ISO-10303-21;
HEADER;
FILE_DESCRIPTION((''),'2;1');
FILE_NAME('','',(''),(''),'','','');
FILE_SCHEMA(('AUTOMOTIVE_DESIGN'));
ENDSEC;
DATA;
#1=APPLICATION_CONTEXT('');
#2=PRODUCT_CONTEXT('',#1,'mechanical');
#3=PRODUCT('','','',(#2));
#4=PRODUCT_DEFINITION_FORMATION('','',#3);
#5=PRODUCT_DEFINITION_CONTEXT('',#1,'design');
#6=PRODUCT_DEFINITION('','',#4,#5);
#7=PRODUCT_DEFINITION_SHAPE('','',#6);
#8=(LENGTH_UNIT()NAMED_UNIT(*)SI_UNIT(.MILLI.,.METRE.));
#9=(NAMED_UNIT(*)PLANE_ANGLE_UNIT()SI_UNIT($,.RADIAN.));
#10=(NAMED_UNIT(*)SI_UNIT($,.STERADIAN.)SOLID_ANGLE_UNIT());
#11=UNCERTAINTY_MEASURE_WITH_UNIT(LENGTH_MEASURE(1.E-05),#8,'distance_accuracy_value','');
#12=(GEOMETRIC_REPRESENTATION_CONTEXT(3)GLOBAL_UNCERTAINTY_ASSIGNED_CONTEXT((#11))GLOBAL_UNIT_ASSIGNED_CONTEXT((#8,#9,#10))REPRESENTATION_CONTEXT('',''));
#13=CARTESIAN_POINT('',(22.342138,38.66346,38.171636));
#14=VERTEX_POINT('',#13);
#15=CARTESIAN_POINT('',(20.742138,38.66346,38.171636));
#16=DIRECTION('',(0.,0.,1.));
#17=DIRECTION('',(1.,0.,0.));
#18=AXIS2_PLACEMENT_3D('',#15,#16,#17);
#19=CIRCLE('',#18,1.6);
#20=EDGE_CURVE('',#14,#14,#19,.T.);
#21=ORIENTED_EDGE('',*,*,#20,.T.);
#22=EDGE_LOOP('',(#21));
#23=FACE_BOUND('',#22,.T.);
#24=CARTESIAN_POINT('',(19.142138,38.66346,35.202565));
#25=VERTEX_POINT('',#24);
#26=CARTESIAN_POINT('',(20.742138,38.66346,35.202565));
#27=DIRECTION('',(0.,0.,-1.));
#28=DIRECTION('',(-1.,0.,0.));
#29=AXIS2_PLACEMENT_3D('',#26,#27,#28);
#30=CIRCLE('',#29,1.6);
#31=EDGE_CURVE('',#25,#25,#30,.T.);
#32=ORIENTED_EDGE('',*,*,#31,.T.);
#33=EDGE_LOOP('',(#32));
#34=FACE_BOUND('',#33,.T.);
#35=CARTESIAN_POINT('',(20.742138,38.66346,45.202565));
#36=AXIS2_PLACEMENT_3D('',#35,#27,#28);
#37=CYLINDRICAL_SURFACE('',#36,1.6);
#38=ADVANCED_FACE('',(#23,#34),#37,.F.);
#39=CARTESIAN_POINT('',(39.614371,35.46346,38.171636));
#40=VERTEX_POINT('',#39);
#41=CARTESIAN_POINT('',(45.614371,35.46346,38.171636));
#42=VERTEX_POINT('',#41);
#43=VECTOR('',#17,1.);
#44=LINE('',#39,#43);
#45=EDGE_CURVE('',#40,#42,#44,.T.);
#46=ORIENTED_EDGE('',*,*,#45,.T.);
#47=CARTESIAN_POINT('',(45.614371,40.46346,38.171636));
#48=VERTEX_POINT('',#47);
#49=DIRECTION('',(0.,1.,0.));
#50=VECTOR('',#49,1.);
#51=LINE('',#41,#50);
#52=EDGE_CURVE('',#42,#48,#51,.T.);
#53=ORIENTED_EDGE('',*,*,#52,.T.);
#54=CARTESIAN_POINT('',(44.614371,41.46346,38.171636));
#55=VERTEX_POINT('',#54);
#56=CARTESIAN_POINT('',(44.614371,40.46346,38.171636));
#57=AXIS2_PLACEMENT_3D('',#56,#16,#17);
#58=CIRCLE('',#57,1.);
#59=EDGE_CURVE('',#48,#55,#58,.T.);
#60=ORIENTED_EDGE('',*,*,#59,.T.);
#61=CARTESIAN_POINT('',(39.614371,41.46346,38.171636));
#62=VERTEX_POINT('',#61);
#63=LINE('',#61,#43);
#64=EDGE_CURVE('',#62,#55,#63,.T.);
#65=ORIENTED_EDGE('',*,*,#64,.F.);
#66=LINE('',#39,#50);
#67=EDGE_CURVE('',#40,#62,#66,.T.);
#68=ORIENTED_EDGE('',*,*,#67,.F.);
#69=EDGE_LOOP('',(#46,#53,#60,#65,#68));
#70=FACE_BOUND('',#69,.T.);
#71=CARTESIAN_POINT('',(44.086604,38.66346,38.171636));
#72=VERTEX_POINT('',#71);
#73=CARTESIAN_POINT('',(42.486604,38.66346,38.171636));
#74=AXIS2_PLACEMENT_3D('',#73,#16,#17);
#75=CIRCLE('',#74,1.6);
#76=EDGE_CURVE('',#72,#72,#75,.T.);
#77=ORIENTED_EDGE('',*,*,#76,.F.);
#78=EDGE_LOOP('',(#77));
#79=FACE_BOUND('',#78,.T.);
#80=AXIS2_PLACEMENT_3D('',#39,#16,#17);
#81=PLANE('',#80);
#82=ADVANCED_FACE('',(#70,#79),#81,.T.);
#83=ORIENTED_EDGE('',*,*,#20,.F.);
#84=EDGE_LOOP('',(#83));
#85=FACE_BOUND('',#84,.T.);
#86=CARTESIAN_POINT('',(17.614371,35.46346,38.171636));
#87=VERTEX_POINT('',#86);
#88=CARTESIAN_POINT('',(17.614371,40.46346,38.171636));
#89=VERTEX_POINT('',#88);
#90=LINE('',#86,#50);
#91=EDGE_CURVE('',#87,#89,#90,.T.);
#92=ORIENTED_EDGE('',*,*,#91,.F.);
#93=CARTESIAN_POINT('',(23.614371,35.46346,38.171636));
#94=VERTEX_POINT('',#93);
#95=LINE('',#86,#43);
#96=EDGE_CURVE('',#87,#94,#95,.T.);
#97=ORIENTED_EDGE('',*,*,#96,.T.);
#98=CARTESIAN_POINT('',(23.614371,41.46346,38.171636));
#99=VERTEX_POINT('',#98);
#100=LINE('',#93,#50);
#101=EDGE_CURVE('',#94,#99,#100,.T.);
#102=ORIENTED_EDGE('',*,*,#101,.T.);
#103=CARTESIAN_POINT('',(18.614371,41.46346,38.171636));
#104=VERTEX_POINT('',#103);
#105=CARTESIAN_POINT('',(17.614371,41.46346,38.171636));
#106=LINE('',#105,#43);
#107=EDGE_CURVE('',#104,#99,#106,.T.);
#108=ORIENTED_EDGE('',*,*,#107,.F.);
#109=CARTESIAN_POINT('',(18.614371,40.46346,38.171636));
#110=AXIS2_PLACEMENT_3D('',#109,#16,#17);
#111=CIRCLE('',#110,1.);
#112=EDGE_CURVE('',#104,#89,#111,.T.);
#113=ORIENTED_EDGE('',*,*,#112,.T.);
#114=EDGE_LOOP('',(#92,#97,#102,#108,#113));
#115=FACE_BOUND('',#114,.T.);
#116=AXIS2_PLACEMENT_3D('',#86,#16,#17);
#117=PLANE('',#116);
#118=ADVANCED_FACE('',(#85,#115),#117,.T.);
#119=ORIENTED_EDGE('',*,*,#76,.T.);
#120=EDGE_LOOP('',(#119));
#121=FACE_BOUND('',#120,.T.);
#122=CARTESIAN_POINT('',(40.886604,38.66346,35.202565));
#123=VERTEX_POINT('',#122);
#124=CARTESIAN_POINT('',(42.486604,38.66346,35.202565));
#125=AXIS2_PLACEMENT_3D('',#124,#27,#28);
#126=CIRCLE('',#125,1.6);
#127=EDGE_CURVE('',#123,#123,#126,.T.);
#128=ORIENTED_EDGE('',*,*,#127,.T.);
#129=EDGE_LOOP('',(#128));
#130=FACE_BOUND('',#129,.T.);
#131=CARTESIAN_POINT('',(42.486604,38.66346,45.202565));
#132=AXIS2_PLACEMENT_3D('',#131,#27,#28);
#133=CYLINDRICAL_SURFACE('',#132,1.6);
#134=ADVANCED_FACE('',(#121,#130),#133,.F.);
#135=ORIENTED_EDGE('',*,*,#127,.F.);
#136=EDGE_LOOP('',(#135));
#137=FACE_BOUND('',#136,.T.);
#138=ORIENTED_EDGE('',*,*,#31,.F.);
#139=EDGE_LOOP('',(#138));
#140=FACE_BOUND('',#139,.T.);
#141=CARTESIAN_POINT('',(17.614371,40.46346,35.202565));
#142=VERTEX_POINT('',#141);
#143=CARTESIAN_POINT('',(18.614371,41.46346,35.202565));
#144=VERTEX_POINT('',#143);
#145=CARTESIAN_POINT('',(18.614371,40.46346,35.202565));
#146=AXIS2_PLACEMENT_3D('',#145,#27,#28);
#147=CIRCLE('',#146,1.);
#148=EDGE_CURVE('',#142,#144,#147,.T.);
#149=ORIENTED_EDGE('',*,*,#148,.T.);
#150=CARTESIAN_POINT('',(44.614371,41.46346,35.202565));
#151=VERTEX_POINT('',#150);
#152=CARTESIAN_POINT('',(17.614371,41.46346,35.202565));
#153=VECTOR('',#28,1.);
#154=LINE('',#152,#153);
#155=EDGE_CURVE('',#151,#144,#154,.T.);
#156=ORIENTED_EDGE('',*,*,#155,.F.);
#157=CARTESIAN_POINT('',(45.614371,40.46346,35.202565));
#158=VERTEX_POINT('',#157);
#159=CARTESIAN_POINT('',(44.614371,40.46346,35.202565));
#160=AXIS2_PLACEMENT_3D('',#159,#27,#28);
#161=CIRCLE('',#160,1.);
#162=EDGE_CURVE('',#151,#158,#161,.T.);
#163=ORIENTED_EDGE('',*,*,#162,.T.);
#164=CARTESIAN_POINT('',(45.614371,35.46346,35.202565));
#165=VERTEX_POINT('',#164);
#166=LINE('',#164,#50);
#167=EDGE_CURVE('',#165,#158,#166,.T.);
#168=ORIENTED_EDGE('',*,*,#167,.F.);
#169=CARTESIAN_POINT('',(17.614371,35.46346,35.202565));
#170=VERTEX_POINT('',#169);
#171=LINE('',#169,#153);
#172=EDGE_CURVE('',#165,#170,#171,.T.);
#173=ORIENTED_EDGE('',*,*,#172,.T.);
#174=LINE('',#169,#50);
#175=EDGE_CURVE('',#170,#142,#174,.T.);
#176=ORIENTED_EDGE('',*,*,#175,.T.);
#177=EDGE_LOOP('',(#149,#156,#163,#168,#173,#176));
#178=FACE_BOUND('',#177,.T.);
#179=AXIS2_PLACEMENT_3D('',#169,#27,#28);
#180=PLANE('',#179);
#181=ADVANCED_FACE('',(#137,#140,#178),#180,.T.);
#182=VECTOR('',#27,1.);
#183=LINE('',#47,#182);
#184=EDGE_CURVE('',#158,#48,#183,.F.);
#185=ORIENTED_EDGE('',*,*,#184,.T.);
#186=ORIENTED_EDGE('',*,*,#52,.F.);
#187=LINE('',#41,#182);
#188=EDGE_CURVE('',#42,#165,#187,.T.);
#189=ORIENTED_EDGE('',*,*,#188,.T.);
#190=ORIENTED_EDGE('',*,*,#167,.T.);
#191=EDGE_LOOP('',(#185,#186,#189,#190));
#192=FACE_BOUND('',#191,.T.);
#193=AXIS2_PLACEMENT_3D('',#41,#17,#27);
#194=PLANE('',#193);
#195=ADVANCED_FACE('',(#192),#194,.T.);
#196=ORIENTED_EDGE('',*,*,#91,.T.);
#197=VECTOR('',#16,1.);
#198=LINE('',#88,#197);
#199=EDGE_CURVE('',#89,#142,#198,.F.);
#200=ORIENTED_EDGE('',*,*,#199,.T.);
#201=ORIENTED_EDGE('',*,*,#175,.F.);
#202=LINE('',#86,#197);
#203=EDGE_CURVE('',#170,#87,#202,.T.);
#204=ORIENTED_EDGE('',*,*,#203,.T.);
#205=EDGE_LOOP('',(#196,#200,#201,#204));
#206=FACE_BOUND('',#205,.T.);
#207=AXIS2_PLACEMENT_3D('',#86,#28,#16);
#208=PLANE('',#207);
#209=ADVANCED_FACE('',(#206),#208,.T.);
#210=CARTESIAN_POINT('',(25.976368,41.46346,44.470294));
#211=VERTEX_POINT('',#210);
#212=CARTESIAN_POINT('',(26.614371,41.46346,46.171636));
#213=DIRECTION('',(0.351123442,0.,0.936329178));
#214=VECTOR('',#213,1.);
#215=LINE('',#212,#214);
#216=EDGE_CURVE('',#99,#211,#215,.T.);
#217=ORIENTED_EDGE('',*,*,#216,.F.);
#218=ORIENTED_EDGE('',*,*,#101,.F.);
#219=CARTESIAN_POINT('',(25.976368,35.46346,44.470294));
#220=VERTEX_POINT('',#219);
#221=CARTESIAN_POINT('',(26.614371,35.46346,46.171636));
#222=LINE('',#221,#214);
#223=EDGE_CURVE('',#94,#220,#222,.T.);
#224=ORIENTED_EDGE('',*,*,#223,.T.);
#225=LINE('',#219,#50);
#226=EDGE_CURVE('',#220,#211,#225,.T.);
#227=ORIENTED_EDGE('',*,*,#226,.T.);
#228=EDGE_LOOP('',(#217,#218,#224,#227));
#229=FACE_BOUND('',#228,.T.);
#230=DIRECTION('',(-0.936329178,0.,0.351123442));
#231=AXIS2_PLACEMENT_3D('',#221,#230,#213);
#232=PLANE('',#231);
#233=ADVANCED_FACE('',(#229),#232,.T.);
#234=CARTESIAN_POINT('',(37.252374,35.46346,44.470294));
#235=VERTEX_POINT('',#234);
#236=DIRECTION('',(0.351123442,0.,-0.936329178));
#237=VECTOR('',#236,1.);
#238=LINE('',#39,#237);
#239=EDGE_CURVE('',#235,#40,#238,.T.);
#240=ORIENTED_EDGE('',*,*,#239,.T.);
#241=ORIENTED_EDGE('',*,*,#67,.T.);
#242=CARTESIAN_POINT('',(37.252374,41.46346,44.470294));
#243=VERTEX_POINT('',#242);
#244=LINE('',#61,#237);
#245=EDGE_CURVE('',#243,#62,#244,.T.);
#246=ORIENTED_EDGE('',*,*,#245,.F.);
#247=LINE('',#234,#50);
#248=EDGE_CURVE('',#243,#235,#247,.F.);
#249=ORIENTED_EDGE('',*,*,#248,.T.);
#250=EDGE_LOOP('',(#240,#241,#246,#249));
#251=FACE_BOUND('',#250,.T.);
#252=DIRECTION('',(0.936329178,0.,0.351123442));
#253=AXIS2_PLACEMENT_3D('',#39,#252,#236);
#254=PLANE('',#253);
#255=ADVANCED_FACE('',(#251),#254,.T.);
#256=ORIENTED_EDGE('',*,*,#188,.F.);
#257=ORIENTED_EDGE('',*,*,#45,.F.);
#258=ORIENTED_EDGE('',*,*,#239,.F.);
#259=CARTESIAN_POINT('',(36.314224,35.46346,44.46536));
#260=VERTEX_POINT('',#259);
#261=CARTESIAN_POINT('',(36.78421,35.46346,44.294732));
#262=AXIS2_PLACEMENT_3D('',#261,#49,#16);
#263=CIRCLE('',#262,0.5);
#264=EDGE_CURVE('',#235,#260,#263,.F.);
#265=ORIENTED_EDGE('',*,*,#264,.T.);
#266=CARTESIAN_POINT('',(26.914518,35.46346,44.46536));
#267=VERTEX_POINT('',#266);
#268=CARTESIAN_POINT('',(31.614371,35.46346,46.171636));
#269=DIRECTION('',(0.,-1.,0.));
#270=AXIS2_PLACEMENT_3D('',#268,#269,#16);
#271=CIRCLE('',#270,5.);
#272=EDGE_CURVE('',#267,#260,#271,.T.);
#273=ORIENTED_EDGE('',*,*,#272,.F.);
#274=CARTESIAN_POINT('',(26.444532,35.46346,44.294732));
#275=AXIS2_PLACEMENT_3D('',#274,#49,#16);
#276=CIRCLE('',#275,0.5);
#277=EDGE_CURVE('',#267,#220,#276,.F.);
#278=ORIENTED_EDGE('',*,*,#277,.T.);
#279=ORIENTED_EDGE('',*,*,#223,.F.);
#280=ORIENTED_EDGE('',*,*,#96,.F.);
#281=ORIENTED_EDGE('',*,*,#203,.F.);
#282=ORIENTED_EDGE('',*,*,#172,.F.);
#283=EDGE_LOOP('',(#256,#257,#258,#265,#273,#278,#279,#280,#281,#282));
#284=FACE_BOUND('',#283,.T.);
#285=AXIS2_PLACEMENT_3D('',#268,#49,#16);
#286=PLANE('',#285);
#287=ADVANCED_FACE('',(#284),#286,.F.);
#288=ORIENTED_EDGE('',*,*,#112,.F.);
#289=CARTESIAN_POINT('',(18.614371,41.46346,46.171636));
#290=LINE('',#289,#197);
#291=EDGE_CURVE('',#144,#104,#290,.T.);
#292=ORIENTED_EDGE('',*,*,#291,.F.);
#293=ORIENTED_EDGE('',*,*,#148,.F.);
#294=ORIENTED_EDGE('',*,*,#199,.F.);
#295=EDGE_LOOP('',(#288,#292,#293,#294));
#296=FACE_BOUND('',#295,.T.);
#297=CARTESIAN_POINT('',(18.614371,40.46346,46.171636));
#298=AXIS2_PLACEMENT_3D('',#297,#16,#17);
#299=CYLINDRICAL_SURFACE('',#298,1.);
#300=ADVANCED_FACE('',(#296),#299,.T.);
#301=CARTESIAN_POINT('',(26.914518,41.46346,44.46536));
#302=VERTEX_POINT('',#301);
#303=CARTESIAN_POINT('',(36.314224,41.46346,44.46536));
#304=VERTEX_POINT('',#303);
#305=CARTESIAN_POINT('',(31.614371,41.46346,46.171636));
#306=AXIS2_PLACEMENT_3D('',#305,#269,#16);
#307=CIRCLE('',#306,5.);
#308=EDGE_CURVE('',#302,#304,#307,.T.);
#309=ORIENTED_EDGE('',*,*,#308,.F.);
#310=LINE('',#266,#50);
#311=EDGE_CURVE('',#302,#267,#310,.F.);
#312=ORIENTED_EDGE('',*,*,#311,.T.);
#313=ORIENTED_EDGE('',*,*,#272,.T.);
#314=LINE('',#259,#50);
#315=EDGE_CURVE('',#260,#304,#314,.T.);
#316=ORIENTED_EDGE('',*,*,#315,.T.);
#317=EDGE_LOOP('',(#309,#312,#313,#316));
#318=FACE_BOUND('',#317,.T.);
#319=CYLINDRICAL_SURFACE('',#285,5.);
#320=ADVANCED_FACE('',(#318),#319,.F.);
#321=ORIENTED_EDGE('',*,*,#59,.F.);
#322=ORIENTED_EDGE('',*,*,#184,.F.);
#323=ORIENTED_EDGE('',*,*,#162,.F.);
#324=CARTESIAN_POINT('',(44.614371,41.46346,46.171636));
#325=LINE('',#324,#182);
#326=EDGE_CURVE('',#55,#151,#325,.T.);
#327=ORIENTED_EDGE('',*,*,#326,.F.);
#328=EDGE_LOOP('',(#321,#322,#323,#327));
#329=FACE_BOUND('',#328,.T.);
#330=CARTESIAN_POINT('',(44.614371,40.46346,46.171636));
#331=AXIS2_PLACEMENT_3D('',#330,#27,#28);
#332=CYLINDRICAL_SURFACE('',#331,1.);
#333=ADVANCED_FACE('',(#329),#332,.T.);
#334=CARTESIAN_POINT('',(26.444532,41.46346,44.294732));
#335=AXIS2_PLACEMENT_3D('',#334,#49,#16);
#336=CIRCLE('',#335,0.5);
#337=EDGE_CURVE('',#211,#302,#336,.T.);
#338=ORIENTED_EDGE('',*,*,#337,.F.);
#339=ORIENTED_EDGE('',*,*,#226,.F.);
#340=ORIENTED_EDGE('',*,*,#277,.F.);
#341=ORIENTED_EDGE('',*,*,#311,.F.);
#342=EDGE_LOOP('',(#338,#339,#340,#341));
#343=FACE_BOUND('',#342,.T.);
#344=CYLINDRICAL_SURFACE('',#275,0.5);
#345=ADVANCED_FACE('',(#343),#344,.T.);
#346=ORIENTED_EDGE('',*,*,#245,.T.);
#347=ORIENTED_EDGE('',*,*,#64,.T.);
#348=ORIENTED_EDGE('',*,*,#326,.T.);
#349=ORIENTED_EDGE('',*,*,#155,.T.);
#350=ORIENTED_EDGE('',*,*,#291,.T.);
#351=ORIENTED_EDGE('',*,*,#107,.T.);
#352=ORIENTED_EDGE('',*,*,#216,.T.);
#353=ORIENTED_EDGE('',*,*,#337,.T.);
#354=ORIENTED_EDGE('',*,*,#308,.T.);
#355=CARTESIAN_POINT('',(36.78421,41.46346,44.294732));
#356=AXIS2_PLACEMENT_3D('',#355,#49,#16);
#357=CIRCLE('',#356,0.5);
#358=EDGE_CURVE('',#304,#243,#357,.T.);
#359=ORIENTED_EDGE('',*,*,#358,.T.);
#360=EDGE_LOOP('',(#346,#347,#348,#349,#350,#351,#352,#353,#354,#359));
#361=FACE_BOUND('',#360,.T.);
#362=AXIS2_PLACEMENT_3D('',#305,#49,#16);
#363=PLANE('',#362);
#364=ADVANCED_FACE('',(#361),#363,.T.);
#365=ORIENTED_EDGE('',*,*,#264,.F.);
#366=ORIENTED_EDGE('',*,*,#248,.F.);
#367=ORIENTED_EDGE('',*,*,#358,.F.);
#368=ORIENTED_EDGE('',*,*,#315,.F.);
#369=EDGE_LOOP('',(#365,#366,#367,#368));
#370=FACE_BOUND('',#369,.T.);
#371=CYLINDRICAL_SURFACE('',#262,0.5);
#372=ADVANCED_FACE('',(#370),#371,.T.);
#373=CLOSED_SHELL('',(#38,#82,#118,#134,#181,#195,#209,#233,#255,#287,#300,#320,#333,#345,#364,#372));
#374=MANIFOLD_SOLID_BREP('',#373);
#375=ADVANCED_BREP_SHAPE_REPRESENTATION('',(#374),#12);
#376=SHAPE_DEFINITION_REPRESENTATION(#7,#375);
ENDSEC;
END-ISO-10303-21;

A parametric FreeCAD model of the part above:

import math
import FreeCAD as App
import Part
import Sketcher
from FreeCAD import Vector


def edges_at(feature, points):
    """Names of the edges that pass closest to the given points."""
    edges = feature.Shape.Edges
    near = lambda p: min(range(len(edges)), key=lambda i: edges[i].distToShape(Part.Vertex(*p))[0])
    return sorted({f"Edge{near(p) + 1}" for p in points})

doc = App.newDocument("Part")
params = doc.addObject("Spreadsheet::Sheet", "Params")
for row, (alias, value) in enumerate([
    ("sketch1_radius", "5 mm"),
    ("sketch1_width", "6 mm"),
    ("sketch1_width2", "28 mm"),
    ("pad1_length", "6 mm"),
    ("fillet_radius", "1 mm"),
    ("fillet2_radius", "0.5 mm"),
    ("sketch2_diameter", "3.2 mm"),
    ("pocket1_length", "10 mm"),
], start=1):
    params.set(f"A{row}", alias)
    params.set(f"B{row}", "=" + value)
    params.setAlias(f"B{row}", alias)

body = doc.addObject("PartDesign::Body", "Body")

# Sketch on XZ plane
sketch1 = body.newObject("Sketcher::SketchObject", "Sketch")
sketch1.AttachmentSupport = (doc.getObject("XZ_Plane"), [""])
sketch1.MapMode = "FlatFace"
sketch1.AttachmentOffset = App.Placement(Vector(0, 0, -41.46346), App.Rotation())
sketch1.addGeometry(Part.LineSegment(Vector(23.6, 38.2, 0), Vector(26.6, 46.2, 0)), False)
sketch1.addGeometry(Part.ArcOfCircle(Part.Circle(Vector(31.6, 46.2, 0), Vector(0, 0, 1), 5), math.radians(180), math.radians(360)), False)
sketch1.addGeometry(Part.LineSegment(Vector(36.6, 46.2, 0), Vector(39.6, 38.2, 0)), False)
sketch1.addGeometry(Part.LineSegment(Vector(39.6, 38.2, 0), Vector(45.6, 38.2, 0)), False)
sketch1.addGeometry(Part.LineSegment(Vector(45.6, 38.2, 0), Vector(45.6, 35.2, 0)), False)
sketch1.addGeometry(Part.LineSegment(Vector(45.6, 35.2, 0), Vector(17.6, 35.2, 0)), False)
sketch1.addGeometry(Part.LineSegment(Vector(17.6, 35.2, 0), Vector(17.6, 38.2, 0)), False)
sketch1.addGeometry(Part.LineSegment(Vector(17.6, 38.2, 0), Vector(23.6, 38.2, 0)), False)
sketch1.addConstraint(Sketcher.Constraint("Coincident", 0, 2, 1, 1))
sketch1.addConstraint(Sketcher.Constraint("Coincident", 1, 2, 2, 1))
sketch1.addConstraint(Sketcher.Constraint("Coincident", 2, 2, 3, 1))
sketch1.addConstraint(Sketcher.Constraint("Coincident", 3, 2, 4, 1))
sketch1.addConstraint(Sketcher.Constraint("Coincident", 4, 2, 5, 1))
sketch1.addConstraint(Sketcher.Constraint("Coincident", 5, 2, 6, 1))
sketch1.addConstraint(Sketcher.Constraint("Coincident", 6, 2, 7, 1))
sketch1.addConstraint(Sketcher.Constraint("Coincident", 7, 2, 0, 1))
sketch1.addConstraint(Sketcher.Constraint("Horizontal", 3))
sketch1.addConstraint(Sketcher.Constraint("Vertical", 4))
sketch1.addConstraint(Sketcher.Constraint("Horizontal", 5))
sketch1.addConstraint(Sketcher.Constraint("Vertical", 6))
sketch1.addConstraint(Sketcher.Constraint("Horizontal", 7))
sketch1.addConstraint(Sketcher.Constraint("Horizontal", 1, 3, 0, 2))
sketch1.addConstraint(Sketcher.Constraint("Horizontal", 0, 2, 1, 2))
sketch1.addConstraint(Sketcher.Constraint("Horizontal", 3, 2, 6, 2))
sketch1.addConstraint(Sketcher.Constraint("Equal", 3, 7))
sketch1.addConstraint(Sketcher.Constraint("Equal", 0, 2))
sketch1.addConstraint(Sketcher.Constraint("Radius", 1, 5.0))
sketch1.addConstraint(Sketcher.Constraint("DistanceX", 3, 1, 3, 2, 6.0))
sketch1.addConstraint(Sketcher.Constraint("DistanceX", 5, 2, 5, 1, 28.0))
sketch1.addConstraint(Sketcher.Constraint("DistanceY", 2, 2, 1, 2, 8.0))
sketch1.addConstraint(Sketcher.Constraint("DistanceY", 4, 2, 4, 1, 2.969071))
sketch1.addConstraint(Sketcher.Constraint("DistanceX", -1, 1, 1, 3, 31.614371))
sketch1.addConstraint(Sketcher.Constraint("DistanceY", -1, 1, 1, 3, 46.171636))
sketch1.setExpression("Constraints[18]", "Params.sketch1_radius")
sketch1.setExpression("Constraints[19]", "Params.sketch1_width")
sketch1.setExpression("Constraints[20]", "Params.sketch1_width2")
pad1 = body.newObject("PartDesign::Pad", "Pad")
pad1.Profile = sketch1
pad1.setExpression("Length", "Params.pad1_length")
doc.recompute()

fillet = body.newObject("PartDesign::Fillet", "Fillet")
fillet.Base = (pad1, edges_at(pad1, [(17.614, 41.463, 36.687), (45.614, 41.463, 36.687)]))
fillet.setExpression("Radius", "Params.fillet_radius")
doc.recompute()

fillet2 = body.newObject("PartDesign::Fillet", "Fillet001")
fillet2.Base = (fillet, edges_at(fillet, [(36.614, 38.463, 46.172), (26.614, 38.463, 46.172)]))
fillet2.setExpression("Radius", "Params.fillet2_radius")

# Sketch on XY plane
sketch2 = body.newObject("Sketcher::SketchObject", "Sketch001")
sketch2.AttachmentSupport = (doc.getObject("XY_Plane"), [""])
sketch2.MapMode = "FlatFace"
sketch2.AttachmentOffset = App.Placement(Vector(0, 0, 35.202565), App.Rotation())
sketch2.addGeometry(Part.Circle(Vector(20.7, 38.7, 0), Vector(0, 0, 1), 1.6), False)
sketch2.addGeometry(Part.Circle(Vector(42.5, 38.7, 0), Vector(0, 0, 1), 1.6), False)
sketch2.addConstraint(Sketcher.Constraint("Equal", 0, 1))
sketch2.addConstraint(Sketcher.Constraint("Horizontal", 0, 3, 1, 3))
sketch2.addConstraint(Sketcher.Constraint("Diameter", 0, 3.2))
sketch2.addConstraint(Sketcher.Constraint("DistanceY", -1, 1, 0, 3, 38.66346))
sketch2.addConstraint(Sketcher.Constraint("DistanceX", -1, 1, 0, 3, 20.742138))
sketch2.addConstraint(Sketcher.Constraint("DistanceX", -1, 1, 1, 3, 42.486604))
sketch2.setExpression("Constraints[2]", "Params.sketch2_diameter")
pocket1 = body.newObject("PartDesign::Pocket", "Pocket")
pocket1.Profile = sketch2
pocket1.setExpression("Length", "Params.pocket1_length")
pocket1.Reversed = True

doc.recompute()
